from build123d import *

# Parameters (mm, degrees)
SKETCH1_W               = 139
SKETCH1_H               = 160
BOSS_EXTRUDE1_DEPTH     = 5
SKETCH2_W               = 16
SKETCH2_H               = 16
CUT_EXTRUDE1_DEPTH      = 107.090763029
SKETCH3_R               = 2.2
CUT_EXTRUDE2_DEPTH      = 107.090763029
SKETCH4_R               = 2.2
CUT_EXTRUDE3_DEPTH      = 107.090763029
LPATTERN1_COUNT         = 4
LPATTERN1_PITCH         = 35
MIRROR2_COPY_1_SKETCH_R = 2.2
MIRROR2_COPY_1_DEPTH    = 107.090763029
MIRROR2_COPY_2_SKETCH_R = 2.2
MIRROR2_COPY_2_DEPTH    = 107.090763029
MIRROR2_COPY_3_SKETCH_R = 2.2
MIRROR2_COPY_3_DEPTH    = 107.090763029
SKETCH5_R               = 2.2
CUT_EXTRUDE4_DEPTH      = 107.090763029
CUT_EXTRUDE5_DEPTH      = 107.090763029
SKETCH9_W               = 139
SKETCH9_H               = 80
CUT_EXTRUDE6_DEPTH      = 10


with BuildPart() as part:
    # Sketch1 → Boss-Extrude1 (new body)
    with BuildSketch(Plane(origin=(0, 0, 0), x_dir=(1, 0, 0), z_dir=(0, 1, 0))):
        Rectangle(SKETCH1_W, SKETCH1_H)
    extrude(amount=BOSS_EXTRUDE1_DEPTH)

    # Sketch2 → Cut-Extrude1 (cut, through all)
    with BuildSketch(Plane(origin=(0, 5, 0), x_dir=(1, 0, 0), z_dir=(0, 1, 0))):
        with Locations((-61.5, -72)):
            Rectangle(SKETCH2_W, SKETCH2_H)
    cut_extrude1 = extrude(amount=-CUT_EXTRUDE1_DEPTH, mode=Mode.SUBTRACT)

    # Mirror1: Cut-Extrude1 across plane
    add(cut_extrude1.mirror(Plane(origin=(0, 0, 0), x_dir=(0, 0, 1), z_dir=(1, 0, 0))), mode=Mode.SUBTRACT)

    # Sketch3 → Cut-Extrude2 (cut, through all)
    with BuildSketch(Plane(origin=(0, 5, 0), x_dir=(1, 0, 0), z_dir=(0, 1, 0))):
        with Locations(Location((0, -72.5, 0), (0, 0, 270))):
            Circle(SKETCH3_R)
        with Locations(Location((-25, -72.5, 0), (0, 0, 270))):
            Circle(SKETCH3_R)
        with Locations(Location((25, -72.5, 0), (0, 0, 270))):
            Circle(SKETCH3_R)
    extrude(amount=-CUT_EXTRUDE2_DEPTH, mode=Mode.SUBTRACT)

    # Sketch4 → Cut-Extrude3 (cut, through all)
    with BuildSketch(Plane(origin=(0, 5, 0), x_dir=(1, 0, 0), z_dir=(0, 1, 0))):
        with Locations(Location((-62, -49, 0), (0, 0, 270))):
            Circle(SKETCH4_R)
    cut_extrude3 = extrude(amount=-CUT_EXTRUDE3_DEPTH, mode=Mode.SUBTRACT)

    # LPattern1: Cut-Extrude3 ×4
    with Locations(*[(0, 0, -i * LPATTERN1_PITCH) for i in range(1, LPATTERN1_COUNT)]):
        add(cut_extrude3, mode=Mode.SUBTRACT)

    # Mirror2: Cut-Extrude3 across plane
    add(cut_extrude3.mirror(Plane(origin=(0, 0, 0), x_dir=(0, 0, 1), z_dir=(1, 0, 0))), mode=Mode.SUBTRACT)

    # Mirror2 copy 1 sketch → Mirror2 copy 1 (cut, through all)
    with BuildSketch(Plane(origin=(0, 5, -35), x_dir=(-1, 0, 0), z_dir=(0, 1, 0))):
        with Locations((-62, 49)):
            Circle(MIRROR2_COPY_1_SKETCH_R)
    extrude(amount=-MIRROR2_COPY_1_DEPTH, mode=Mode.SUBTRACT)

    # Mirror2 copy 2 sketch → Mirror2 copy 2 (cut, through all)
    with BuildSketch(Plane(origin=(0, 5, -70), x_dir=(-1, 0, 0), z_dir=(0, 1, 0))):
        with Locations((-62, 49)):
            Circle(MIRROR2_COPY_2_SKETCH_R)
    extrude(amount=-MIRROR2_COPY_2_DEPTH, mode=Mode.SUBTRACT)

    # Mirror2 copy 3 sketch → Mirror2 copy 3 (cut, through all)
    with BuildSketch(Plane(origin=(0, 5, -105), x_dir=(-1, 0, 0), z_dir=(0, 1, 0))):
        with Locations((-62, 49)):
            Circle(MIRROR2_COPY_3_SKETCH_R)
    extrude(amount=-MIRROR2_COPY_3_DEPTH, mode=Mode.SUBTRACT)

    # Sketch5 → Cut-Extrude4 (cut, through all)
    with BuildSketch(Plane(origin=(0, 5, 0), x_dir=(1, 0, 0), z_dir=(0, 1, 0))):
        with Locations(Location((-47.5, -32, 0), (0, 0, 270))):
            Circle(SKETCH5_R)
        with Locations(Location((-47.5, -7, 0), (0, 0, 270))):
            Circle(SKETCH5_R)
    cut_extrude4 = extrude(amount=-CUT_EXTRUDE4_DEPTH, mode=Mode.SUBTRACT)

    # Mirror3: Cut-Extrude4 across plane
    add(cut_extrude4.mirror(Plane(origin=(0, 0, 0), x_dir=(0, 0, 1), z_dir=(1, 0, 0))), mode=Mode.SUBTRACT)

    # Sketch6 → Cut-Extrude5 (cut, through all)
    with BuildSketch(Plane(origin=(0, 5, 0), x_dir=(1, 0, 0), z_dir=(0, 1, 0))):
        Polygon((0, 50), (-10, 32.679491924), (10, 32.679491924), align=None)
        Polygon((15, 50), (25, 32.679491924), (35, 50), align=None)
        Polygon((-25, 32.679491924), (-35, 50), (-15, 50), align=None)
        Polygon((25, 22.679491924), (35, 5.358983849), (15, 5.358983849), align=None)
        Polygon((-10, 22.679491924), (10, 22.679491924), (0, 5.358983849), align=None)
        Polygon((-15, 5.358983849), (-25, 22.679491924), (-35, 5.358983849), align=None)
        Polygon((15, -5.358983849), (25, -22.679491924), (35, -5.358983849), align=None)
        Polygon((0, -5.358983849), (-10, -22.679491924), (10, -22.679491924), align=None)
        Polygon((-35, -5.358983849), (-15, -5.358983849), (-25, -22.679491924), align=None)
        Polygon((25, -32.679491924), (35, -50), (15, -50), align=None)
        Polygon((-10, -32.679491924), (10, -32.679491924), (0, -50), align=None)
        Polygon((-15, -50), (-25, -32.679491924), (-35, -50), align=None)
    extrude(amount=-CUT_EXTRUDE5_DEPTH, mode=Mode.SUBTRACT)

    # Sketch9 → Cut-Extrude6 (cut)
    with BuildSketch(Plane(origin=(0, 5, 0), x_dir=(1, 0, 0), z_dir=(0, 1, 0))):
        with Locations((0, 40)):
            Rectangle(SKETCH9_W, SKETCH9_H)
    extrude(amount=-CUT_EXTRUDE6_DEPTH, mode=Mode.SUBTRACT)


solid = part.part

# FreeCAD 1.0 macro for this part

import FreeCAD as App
import Part
import Sketcher

V = App.Vector
Q = App.Units.Quantity

doc = App.newDocument("Part")
params = doc.addObject("Spreadsheet::Sheet", "Params")
for row, (alias, value) in enumerate([
    ("sketch1_width", "139 mm"),
    ("sketch1_height", "160 mm"),
    ("pad1_length", "5 mm"),
    ("sketch2_width", "16 mm"),
    ("sketch3_diameter", "4.4 mm"),
    ("sketch4_diameter", "4.4 mm"),
    ("linearpattern_pitch", "35 mm"),
    ("sketch5_diameter", "4.4 mm"),
    ("sketch6_diameter", "4.4 mm"),
    ("sketch7_diameter", "4.4 mm"),
    ("sketch8_diameter", "4.4 mm"),
    ("sketch9_width", "20 mm"),
    ("sketch10_width", "139 mm"),
    ("sketch10_height", "80 mm"),
    ("pocket9_length", "10 mm"),
], start=1):
    params.set(f"A{row}", alias)
    params.set(f"B{row}", "=" + value)
    params.setAlias(f"B{row}", alias)

body = doc.addObject("PartDesign::Body", "Body")

sketch1 = body.newObject("Sketcher::SketchObject", "Sketch")
sketch1.AttachmentSupport = (doc.getObject("XZ_Plane"), [""])
sketch1.MapMode = "FlatFace"
sketch1.addGeometry([
    Part.LineSegment(V(-69.5, -80, 0), V(-69.5, 80, 0)),
    Part.LineSegment(V(-69.5, 80, 0), V(69.5, 80, 0)),
    Part.LineSegment(V(69.5, 80, 0), V(69.5, -80, 0)),
    Part.LineSegment(V(69.5, -80, 0), V(-69.5, -80, 0)),
], False)
sketch1.addConstraint([
    Sketcher.Constraint("Coincident", 0, 2, 1, 1),
    Sketcher.Constraint("Coincident", 1, 2, 2, 1),
    Sketcher.Constraint("Coincident", 2, 2, 3, 1),
    Sketcher.Constraint("Coincident", 3, 2, 0, 1),
    Sketcher.Constraint("Vertical", 0),
    Sketcher.Constraint("Horizontal", 1),
    Sketcher.Constraint("Vertical", 2),
    Sketcher.Constraint("Horizontal", 3),
    Sketcher.Constraint("Symmetric", 0, 2, 2, 2, -1, 1),
    Sketcher.Constraint("DistanceX", 1, 1, 1, 2, Q("139 mm")),
    Sketcher.Constraint("DistanceY", 0, 1, 0, 2, Q("160 mm")),
])
sketch1.setExpression("Constraints[9]", "Params.sketch1_width")
sketch1.setExpression("Constraints[10]", "Params.sketch1_height")
pad1 = body.newObject("PartDesign::Pad", "Pad")
pad1.Profile = sketch1
pad1.setExpression("Length", "Params.pad1_length")
pad1.Reversed = True

sketch2 = body.newObject("Sketcher::SketchObject", "Sketch001")
sketch2.AttachmentSupport = (doc.getObject("XZ_Plane"), [""])
sketch2.MapMode = "FlatFace"
sketch2.AttachmentOffset = App.Placement(V(0, 0, -5), App.Rotation())
sketch2.addGeometry([
    Part.LineSegment(V(-69.5, 64, 0), V(-69.5, 80, 0)),
    Part.LineSegment(V(-69.5, 80, 0), V(-53.5, 80, 0)),
    Part.LineSegment(V(-53.5, 80, 0), V(-53.5, 64, 0)),
    Part.LineSegment(V(-53.5, 64, 0), V(-69.5, 64, 0)),
], False)
sketch2.addConstraint([
    Sketcher.Constraint("Coincident", 0, 2, 1, 1),
    Sketcher.Constraint("Coincident", 1, 2, 2, 1),
    Sketcher.Constraint("Coincident", 2, 2, 3, 1),
    Sketcher.Constraint("Coincident", 3, 2, 0, 1),
    Sketcher.Constraint("Vertical", 0),
    Sketcher.Constraint("Horizontal", 1),
    Sketcher.Constraint("Vertical", 2),
    Sketcher.Constraint("Horizontal", 3),
    Sketcher.Constraint("Equal", 3, 0),
    Sketcher.Constraint("DistanceX", 1, 1, 1, 2, Q("16 mm")),
    Sketcher.Constraint("DistanceY", -1, 1, 0, 2, Q("80 mm")),
    Sketcher.Constraint("DistanceX", 0, 2, -1, 1, Q("69.5 mm")),
])
sketch2.setExpression("Constraints[9]", "Params.sketch2_width")
pocket1 = body.newObject("PartDesign::Pocket", "Pocket")
pocket1.Profile = sketch2
pocket1.Type = "ThroughAll"
pocket1.Reversed = True
doc.recompute()

mirrored = body.newObject("PartDesign::Mirrored", "Mirrored")
mirrored.Originals = [pocket1]
mirrored.MirrorPlane = (doc.getObject("YZ_Plane"), [""])
body.Tip = mirrored

sketch3 = body.newObject("Sketcher::SketchObject", "Sketch002")
sketch3.AttachmentSupport = (doc.getObject("XZ_Plane"), [""])
sketch3.MapMode = "FlatFace"
sketch3.AttachmentOffset = App.Placement(V(0, 0, -5), App.Rotation())
sketch3.addGeometry([
    Part.Circle(V(0, 72.5, 0), V(0, 0, 1), 2.2),
    Part.Circle(V(-25, 72.5, 0), V(0, 0, 1), 2.2),
    Part.Circle(V(25, 72.5, 0), V(0, 0, 1), 2.2),
], False)
sketch3.addConstraint([
    Sketcher.Constraint("Equal", 0, 1),
    Sketcher.Constraint("Equal", 1, 2),
    Sketcher.Constraint("Symmetric", 1, 3, 2, 3, -2),
    Sketcher.Constraint("PointOnObject", 0, 3, -2),
    Sketcher.Constraint("Horizontal", 0, 3, 1, 3),
    Sketcher.Constraint("Diameter", 0, Q("4.4 mm")),
    Sketcher.Constraint("DistanceX", 1, 3, -1, 1, Q("25 mm")),
    Sketcher.Constraint("DistanceY", -1, 1, 0, 3, Q("72.5 mm")),
])
sketch3.setExpression("Constraints[5]", "Params.sketch3_diameter")
pocket2 = body.newObject("PartDesign::Pocket", "Pocket001")
pocket2.Profile = sketch3
pocket2.Type = "ThroughAll"
pocket2.Reversed = True

sketch4 = body.newObject("Sketcher::SketchObject", "Sketch003")
sketch4.AttachmentSupport = (doc.getObject("XZ_Plane"), [""])
sketch4.MapMode = "FlatFace"
sketch4.AttachmentOffset = App.Placement(V(0, 0, -5), App.Rotation())
sketch4.addGeometry(Part.Circle(V(-62, 49, 0), V(0, 0, 1), 2.2), False)
sketch4.addConstraint([
    Sketcher.Constraint("Diameter", 0, Q("4.4 mm")),
    Sketcher.Constraint("DistanceX", 0, 3, -1, 1, Q("62 mm")),
    Sketcher.Constraint("DistanceY", -1, 1, 0, 3, Q("49 mm")),
])
sketch4.setExpression("Constraints[0]", "Params.sketch4_diameter")
pocket3 = body.newObject("PartDesign::Pocket", "Pocket002")
pocket3.Profile = sketch4
pocket3.Type = "ThroughAll"
pocket3.Reversed = True
doc.recompute()

linearpattern = body.newObject("PartDesign::LinearPattern", "LinearPattern")
linearpattern.Originals = [pocket3]
linearpattern.Direction = (doc.getObject("Z_Axis"), [""])
linearpattern.Mode = "offset"
linearpattern.setExpression("Offset", "Params.linearpattern_pitch")
linearpattern.Occurrences = 4
linearpattern.Reversed = True
body.Tip = linearpattern
doc.recompute()

mirrored2 = body.newObject("PartDesign::Mirrored", "Mirrored001")
mirrored2.Originals = [pocket3]
mirrored2.MirrorPlane = (doc.getObject("YZ_Plane"), [""])
body.Tip = mirrored2

sketch5 = body.newObject("Sketcher::SketchObject", "Sketch004")
sketch5.AttachmentSupport = (doc.getObject("XZ_Plane"), [""])
sketch5.MapMode = "FlatFace"
sketch5.AttachmentOffset = App.Placement(V(0, 0, -5), App.Rotation())
sketch5.addGeometry(Part.Circle(V(62, 14, 0), V(0, 0, 1), 2.2), False)
sketch5.addConstraint([
    Sketcher.Constraint("Diameter", 0, Q("4.4 mm")),
    Sketcher.Constraint("DistanceX", -1, 1, 0, 3, Q("62 mm")),
    Sketcher.Constraint("DistanceY", -1, 1, 0, 3, Q("14 mm")),
])
sketch5.setExpression("Constraints[0]", "Params.sketch5_diameter")
pocket4 = body.newObject("PartDesign::Pocket", "Pocket003")
pocket4.Profile = sketch5
pocket4.Type = "ThroughAll"
pocket4.Reversed = True

sketch6 = body.newObject("Sketcher::SketchObject", "Sketch005")
sketch6.AttachmentSupport = (doc.getObject("XZ_Plane"), [""])
sketch6.MapMode = "FlatFace"
sketch6.AttachmentOffset = App.Placement(V(0, 0, -5), App.Rotation())
sketch6.addGeometry(Part.Circle(V(62, -21, 0), V(0, 0, 1), 2.2), False)
sketch6.addConstraint([
    Sketcher.Constraint("Diameter", 0, Q("4.4 mm")),
    Sketcher.Constraint("DistanceX", -1, 1, 0, 3, Q("62 mm")),
    Sketcher.Constraint("DistanceY", 0, 3, -1, 1, Q("21 mm")),
])
sketch6.setExpression("Constraints[0]", "Params.sketch6_diameter")
pocket5 = body.newObject("PartDesign::Pocket", "Pocket004")
pocket5.Profile = sketch6
pocket5.Type = "ThroughAll"
pocket5.Reversed = True

sketch7 = body.newObject("Sketcher::SketchObject", "Sketch006")
sketch7.AttachmentSupport = (doc.getObject("XZ_Plane"), [""])
sketch7.MapMode = "FlatFace"
sketch7.AttachmentOffset = App.Placement(V(0, 0, -5), App.Rotation())
sketch7.addGeometry(Part.Circle(V(62, -56, 0), V(0, 0, 1), 2.2), False)
sketch7.addConstraint([
    Sketcher.Constraint("Diameter", 0, Q("4.4 mm")),
    Sketcher.Constraint("DistanceX", -1, 1, 0, 3, Q("62 mm")),
    Sketcher.Constraint("DistanceY", 0, 3, -1, 1, Q("56 mm")),
])
sketch7.setExpression("Constraints[0]", "Params.sketch7_diameter")
pocket6 = body.newObject("PartDesign::Pocket", "Pocket005")
pocket6.Profile = sketch7
pocket6.Type = "ThroughAll"
pocket6.Reversed = True

sketch8 = body.newObject("Sketcher::SketchObject", "Sketch007")
sketch8.AttachmentSupport = (doc.getObject("XZ_Plane"), [""])
sketch8.MapMode = "FlatFace"
sketch8.AttachmentOffset = App.Placement(V(0, 0, -5), App.Rotation())
sketch8.addGeometry([
    Part.Circle(V(-47.5, 32, 0), V(0, 0, 1), 2.2),
    Part.Circle(V(-47.5, 7, 0), V(0, 0, 1), 2.2),
], False)
sketch8.addConstraint([
    Sketcher.Constraint("Equal", 0, 1),
    Sketcher.Constraint("Vertical", 0, 3, 1, 3),
    Sketcher.Constraint("Diameter", 0, Q("4.4 mm")),
    Sketcher.Constraint("DistanceY", -1, 1, 0, 3, Q("32 mm")),
    Sketcher.Constraint("DistanceY", -1, 1, 1, 3, Q("7 mm")),
    Sketcher.Constraint("DistanceX", 0, 3, -1, 1, Q("47.5 mm")),
])
sketch8.setExpression("Constraints[2]", "Params.sketch8_diameter")
pocket7 = body.newObject("PartDesign::Pocket", "Pocket006")
pocket7.Profile = sketch8
pocket7.Type = "ThroughAll"
pocket7.Reversed = True
doc.recompute()

mirrored3 = body.newObject("PartDesign::Mirrored", "Mirrored002")
mirrored3.Originals = [pocket7]
mirrored3.MirrorPlane = (doc.getObject("YZ_Plane"), [""])
body.Tip = mirrored3

sketch9 = body.newObject("Sketcher::SketchObject", "Sketch008")
sketch9.AttachmentSupport = (doc.getObject("XZ_Plane"), [""])
sketch9.MapMode = "FlatFace"
sketch9.AttachmentOffset = App.Placement(V(0, 0, -5), App.Rotation())
sketch9.addGeometry([
    Part.LineSegment(V(0, -50, 0), V(-10, -32.679492, 0)),
    Part.LineSegment(V(-10, -32.679492, 0), V(10, -32.679492, 0)),
    Part.LineSegment(V(10, -32.679492, 0), V(0, -50, 0)),
    Part.LineSegment(V(15, -50, 0), V(25, -32.679492, 0)),
    Part.LineSegment(V(25, -32.679492, 0), V(35, -50, 0)),
    Part.LineSegment(V(35, -50, 0), V(15, -50, 0)),
    Part.LineSegment(V(-35, -50, 0), V(-25, -32.679492, 0)),
    Part.LineSegment(V(-25, -32.679492, 0), V(-15, -50, 0)),
    Part.LineSegment(V(-15, -50, 0), V(-35, -50, 0)),
    Part.LineSegment(V(35, -5.358984, 0), V(25, -22.679492, 0)),
    Part.LineSegment(V(25, -22.679492, 0), V(15, -5.358984, 0)),
    Part.LineSegment(V(15, -5.358984, 0), V(35, -5.358984, 0)),
    Part.LineSegment(V(10, -22.679492, 0), V(-10, -22.679492, 0)),
    Part.LineSegment(V(-10, -22.679492, 0), V(0, -5.358984, 0)),
    Part.LineSegment(V(0, -5.358984, 0), V(10, -22.679492, 0)),
    Part.LineSegment(V(-15, -5.358984, 0), V(-25, -22.679492, 0)),
    Part.LineSegment(V(-25, -22.679492, 0), V(-35, -5.358984, 0)),
    Part.LineSegment(V(-35, -5.358984, 0), V(-15, -5.358984, 0)),
    Part.LineSegment(V(15, 5.358984, 0), V(25, 22.679492, 0)),
    Part.LineSegment(V(25, 22.679492, 0), V(35, 5.358984, 0)),
    Part.LineSegment(V(35, 5.358984, 0), V(15, 5.358984, 0)),
    Part.LineSegment(V(0, 5.358984, 0), V(-10, 22.679492, 0)),
    Part.LineSegment(V(-10, 22.679492, 0), V(10, 22.679492, 0)),
    Part.LineSegment(V(10, 22.679492, 0), V(0, 5.358984, 0)),
    Part.LineSegment(V(-15, 5.358984, 0), V(-35, 5.358984, 0)),
    Part.LineSegment(V(-35, 5.358984, 0), V(-25, 22.679492, 0)),
    Part.LineSegment(V(-25, 22.679492, 0), V(-15, 5.358984, 0)),
    Part.LineSegment(V(35, 50, 0), V(25, 32.679492, 0)),
    Part.LineSegment(V(25, 32.679492, 0), V(15, 50, 0)),
    Part.LineSegment(V(15, 50, 0), V(35, 50, 0)),
    Part.LineSegment(V(10, 32.679492, 0), V(-10, 32.679492, 0)),
    Part.LineSegment(V(-10, 32.679492, 0), V(0, 50, 0)),
    Part.LineSegment(V(0, 50, 0), V(10, 32.679492, 0)),
    Part.LineSegment(V(-15, 50, 0), V(-25, 32.679492, 0)),
    Part.LineSegment(V(-25, 32.679492, 0), V(-35, 50, 0)),
    Part.LineSegment(V(-35, 50, 0), V(-15, 50, 0)),
], False)
sketch9.addConstraint([
    Sketcher.Constraint("Coincident", 0, 2, 1, 1),
    Sketcher.Constraint("Coincident", 1, 2, 2, 1),
    Sketcher.Constraint("Coincident", 2, 2, 0, 1),
    Sketcher.Constraint("Coincident", 3, 2, 4, 1),
    Sketcher.Constraint("Coincident", 4, 2, 5, 1),
    Sketcher.Constraint("Coincident", 5, 2, 3, 1),
    Sketcher.Constraint("Coincident", 6, 2, 7, 1),
    Sketcher.Constraint("Coincident", 7, 2, 8, 1),
    Sketcher.Constraint("Coincident", 8, 2, 6, 1),
    Sketcher.Constraint("Coincident", 9, 2, 10, 1),
    Sketcher.Constraint("Coincident", 10, 2, 11, 1),
    Sketcher.Constraint("Coincident", 11, 2, 9, 1),
    Sketcher.Constraint("Coincident", 12, 2, 13, 1),
    Sketcher.Constraint("Coincident", 13, 2, 14, 1),
    Sketcher.Constraint("Coincident", 14, 2, 12, 1),
    Sketcher.Constraint("Coincident", 15, 2, 16, 1),
    Sketcher.Constraint("Coincident", 16, 2, 17, 1),
    Sketcher.Constraint("Coincident", 17, 2, 15, 1),
    Sketcher.Constraint("Coincident", 18, 2, 19, 1),
    Sketcher.Constraint("Coincident", 19, 2, 20, 1),
    Sketcher.Constraint("Coincident", 20, 2, 18, 1),
    Sketcher.Constraint("Coincident", 21, 2, 22, 1),
    Sketcher.Constraint("Coincident", 22, 2, 23, 1),
    Sketcher.Constraint("Coincident", 23, 2, 21, 1),
    Sketcher.Constraint("Coincident", 24, 2, 25, 1),
    Sketcher.Constraint("Coincident", 25, 2, 26, 1),
    Sketcher.Constraint("Coincident", 26, 2, 24, 1),
    Sketcher.Constraint("Coincident", 27, 2, 28, 1),
    Sketcher.Constraint("Coincident", 28, 2, 29, 1),
    Sketcher.Constraint("Coincident", 29, 2, 27, 1),
    Sketcher.Constraint("Coincident", 30, 2, 31, 1),
    Sketcher.Constraint("Coincident", 31, 2, 32, 1),
    Sketcher.Constraint("Coincident", 32, 2, 30, 1),
    Sketcher.Constraint("Coincident", 33, 2, 34, 1),
    Sketcher.Constraint("Coincident", 34, 2, 35, 1),
    Sketcher.Constraint("Coincident", 35, 2, 33, 1),
    Sketcher.Constraint("Horizontal", 1),
    Sketcher.Constraint("Horizontal", 5),
    Sketcher.Constraint("Horizontal", 8),
    Sketcher.Constraint("Horizontal", 11),
    Sketcher.Constraint("Horizontal", 12),
    Sketcher.Constraint("Horizontal", 17),
    Sketcher.Constraint("Horizontal", 20),
    Sketcher.Constraint("Horizontal", 22),
    Sketcher.Constraint("Horizontal", 24),
    Sketcher.Constraint("Horizontal", 29),
    Sketcher.Constraint("Horizontal", 30),
    Sketcher.Constraint("Horizontal", 35),
    Sketcher.Constraint("Symmetric", 15, 2, 18, 2, -1, 1),
    Sketcher.Constraint("Symmetric", 16, 2, 19, 2, -1, 1),
    Sketcher.Constraint("Symmetric", 14, 2, 21, 2, -1, 1),
    Sketcher.Constraint("Symmetric", 13, 2, 23, 2, -1, 1),
    Sketcher.Constraint("Symmetric", 11, 2, 24, 2, -1, 1),
    Sketcher.Constraint("Symmetric", 9, 2, 25, 2, -1, 1),
    Sketcher.Constraint("Symmetric", 6, 2, 27, 2, -1, 1),
    Sketcher.Constraint("Symmetric", 7, 2, 28, 2, -1, 1),
    Sketcher.Constraint("Symmetric", 1, 2, 30, 2, -1, 1),
    Sketcher.Constraint("Symmetric", 2, 2, 31, 2, -1, 1),
    Sketcher.Constraint("Symmetric", 3, 2, 33, 2, -1, 1),
    Sketcher.Constraint("Symmetric", 4, 2, 34, 2, -1, 1),
    Sketcher.Constraint("Symmetric", 3, 2, 6, 2, -2),
    Sketcher.Constraint("Symmetric", 5, 2, 7, 2, -2),
    Sketcher.Constraint("Symmetric", 9, 2, 15, 2, -2),
    Sketcher.Constraint("Symmetric", 11, 2, 16, 2, -2),
    Sketcher.Constraint("PointOnObject", 2, 2, -2),
    Sketcher.Constraint("PointOnObject", 13, 2, -2),
    Sketcher.Constraint("Parallel", 2, 3),
    Sketcher.Constraint("Parallel", 0, 4),
    Sketcher.Constraint("Parallel", 3, 6),
    Sketcher.Constraint("Parallel", 4, 7),
    Sketcher.Constraint("Parallel", 6, 9),
    Sketcher.Constraint("Parallel", 7, 10),
    Sketcher.Constraint("Parallel", 9, 13),
    Sketcher.Constraint("Parallel", 10, 14),
    Sketcher.Constraint("Parallel", 13, 15),
    Sketcher.Constraint("Parallel", 15, 18),
    Sketcher.Constraint("Parallel", 18, 23),
    Sketcher.Constraint("Parallel", 21, 26),
    Sketcher.Constraint("Parallel", 25, 27),
    Sketcher.Constraint("Parallel", 28, 32),
    Sketcher.Constraint("Parallel", 31, 33),
    Sketcher.Constraint("Horizontal", 1, 2, 3, 2),
    Sketcher.Constraint("Horizontal", 2, 2, 4, 2),
    Sketcher.Constraint("Horizontal", 9, 2, 12, 2),
    Sketcher.Constraint("Horizontal", 11, 2, 13, 2),
    Sketcher.Constraint("Vertical", 3, 2, 9, 2),
    Sketcher.Constraint("Vertical", 5, 2, 10, 2),
    Sketcher.Constraint("DistanceX", 1, 1, 1, 2, Q("20 mm")),
    Sketcher.Constraint("Angle", 0, Q("120 deg")),
    Sketcher.Constraint("DistanceY", 2, 2, -1, 1, Q("50 mm")),
    Sketcher.Constraint("DistanceX", -1, 1, 3, 2, Q("25 mm")),
    Sketcher.Constraint("DistanceY", 3, 2, 9, 2, Q("10 mm")),
])
sketch9.setExpression("Constraints[87]", "Params.sketch9_width")
pocket8 = body.newObject("PartDesign::Pocket", "Pocket007")
pocket8.Profile = sketch9
pocket8.Type = "ThroughAll"
pocket8.Reversed = True

sketch10 = body.newObject("Sketcher::SketchObject", "Sketch009")
sketch10.AttachmentSupport = (doc.getObject("XZ_Plane"), [""])
sketch10.MapMode = "FlatFace"
sketch10.AttachmentOffset = App.Placement(V(0, 0, -5), App.Rotation())
sketch10.addGeometry([
    Part.LineSegment(V(-69.5, -80, 0), V(-69.5, 0, 0)),
    Part.LineSegment(V(-69.5, 0, 0), V(69.5, 0, 0)),
    Part.LineSegment(V(69.5, 0, 0), V(69.5, -80, 0)),
    Part.LineSegment(V(69.5, -80, 0), V(-69.5, -80, 0)),
], False)
sketch10.addConstraint([
    Sketcher.Constraint("Coincident", 0, 2, 1, 1),
    Sketcher.Constraint("Coincident", 1, 2, 2, 1),
    Sketcher.Constraint("Coincident", 2, 2, 3, 1),
    Sketcher.Constraint("Coincident", 3, 2, 0, 1),
    Sketcher.Constraint("Vertical", 0),
    Sketcher.Constraint("Horizontal", 1),
    Sketcher.Constraint("Vertical", 2),
    Sketcher.Constraint("Horizontal", 3),
    Sketcher.Constraint("Symmetric", 0, 2, 1, 2, -1, 1),
    Sketcher.Constraint("DistanceX", 1, 1, 1, 2, Q("139 mm")),
    Sketcher.Constraint("DistanceY", 0, 1, 0, 2, Q("80 mm")),
])
sketch10.setExpression("Constraints[9]", "Params.sketch10_width")
sketch10.setExpression("Constraints[10]", "Params.sketch10_height")
pocket9 = body.newObject("PartDesign::Pocket", "Pocket008")
pocket9.Profile = sketch10
pocket9.setExpression("Length", "Params.pocket9_length")
pocket9.Reversed = True

doc.recompute()
